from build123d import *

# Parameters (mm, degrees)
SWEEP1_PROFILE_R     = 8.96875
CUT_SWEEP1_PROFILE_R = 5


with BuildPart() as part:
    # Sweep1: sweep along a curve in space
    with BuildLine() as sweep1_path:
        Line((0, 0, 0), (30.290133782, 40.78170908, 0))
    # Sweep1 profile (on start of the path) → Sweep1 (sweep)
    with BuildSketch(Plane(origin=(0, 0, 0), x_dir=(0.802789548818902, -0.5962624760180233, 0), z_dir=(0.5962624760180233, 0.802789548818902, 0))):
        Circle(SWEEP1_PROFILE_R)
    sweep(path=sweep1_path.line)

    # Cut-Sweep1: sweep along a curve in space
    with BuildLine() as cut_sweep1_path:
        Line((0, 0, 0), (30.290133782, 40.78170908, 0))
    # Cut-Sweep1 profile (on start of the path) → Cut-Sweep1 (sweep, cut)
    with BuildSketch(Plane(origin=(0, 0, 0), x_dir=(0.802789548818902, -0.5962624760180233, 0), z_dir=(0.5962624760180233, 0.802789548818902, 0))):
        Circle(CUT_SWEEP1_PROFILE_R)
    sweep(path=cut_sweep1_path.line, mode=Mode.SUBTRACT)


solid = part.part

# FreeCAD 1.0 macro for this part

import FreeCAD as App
import Part
import Sketcher
Q = App.Units.Quantity

doc = App.newDocument("Part")
body = doc.addObject("PartDesign::Body", "Body")

# Sketch on an angled plane
sketch1 = doc.addObject("Sketcher::SketchObject", "Sketch")
body.addObject(sketch1)
sketch1.Placement = App.Placement(App.Vector(0, 0, 0), App.Rotation(App.Vector(0.802789549, -0.596262476, 0), App.Vector(0, 0, -1), App.Vector(0.596262476, 0.802789549, 0), "ZXY"))
sketch1.addGeometry(Part.Circle(App.Vector(0, 0, 0), App.Vector(0, 0, 1), 8.96875), False)
sketch1.addConstraint([
    Sketcher.Constraint("Coincident", 0, 3, -1, 1),
    Sketcher.Constraint("Diameter", 0, Q("17.9375 mm")),
])

# Sketch on an angled plane
sketch2 = doc.addObject("Sketcher::SketchObject", "Sketch001")
body.addObject(sketch2)
sketch2.Placement = App.Placement(App.Vector(0, 0, 0), App.Rotation(App.Vector(0.596262476, 0.802789549, 0), App.Vector(0, 0, 1), App.Vector(0.802789549, -0.596262476, 0), "ZXY"))
sketch2.addGeometry(Part.LineSegment(App.Vector(0, 0, 0), App.Vector(50.8, 0, 0)), False)
sketch2.addConstraint([
    Sketcher.Constraint("Horizontal", 0),
    Sketcher.Constraint("Coincident", 0, 1, -1, 1),
    Sketcher.Constraint("DistanceX", 0, 1, 0, 2, Q("50.8 mm")),
])
doc.recompute()

additivepipe = doc.addObject("PartDesign::AdditivePipe", "AdditivePipe")
body.addObject(additivepipe)
additivepipe.Profile = sketch1
additivepipe.Spine = (sketch2, ["Edge1"])

# Sketch on an angled plane
sketch3 = doc.addObject("Sketcher::SketchObject", "Sketch002")
body.addObject(sketch3)
sketch3.Placement = App.Placement(App.Vector(0, 0, 0), App.Rotation(App.Vector(0.802789549, -0.596262476, 0), App.Vector(0, 0, -1), App.Vector(0.596262476, 0.802789549, 0), "ZXY"))
sketch3.addGeometry(Part.Circle(App.Vector(0, 0, 0), App.Vector(0, 0, 1), 5), False)
sketch3.addConstraint([
    Sketcher.Constraint("Coincident", 0, 3, -1, 1),
    Sketcher.Constraint("Diameter", 0, Q("10 mm")),
])

# Sketch on an angled plane
sketch4 = doc.addObject("Sketcher::SketchObject", "Sketch003")
body.addObject(sketch4)
sketch4.Placement = App.Placement(App.Vector(0, 0, 0), App.Rotation(App.Vector(0.596262476, 0.802789549, 0), App.Vector(0, 0, 1), App.Vector(0.802789549, -0.596262476, 0), "ZXY"))
sketch4.addGeometry(Part.LineSegment(App.Vector(0, 0, 0), App.Vector(50.8, 0, 0)), False)
sketch4.addConstraint([
    Sketcher.Constraint("Horizontal", 0),
    Sketcher.Constraint("Coincident", 0, 1, -1, 1),
    Sketcher.Constraint("DistanceX", 0, 1, 0, 2, Q("50.8 mm")),
])
doc.recompute()

subtractivepipe = doc.addObject("PartDesign::SubtractivePipe", "SubtractivePipe")
body.addObject(subtractivepipe)
subtractivepipe.Profile = sketch3
subtractivepipe.Spine = (sketch4, ["Edge1"])

doc.recompute()
